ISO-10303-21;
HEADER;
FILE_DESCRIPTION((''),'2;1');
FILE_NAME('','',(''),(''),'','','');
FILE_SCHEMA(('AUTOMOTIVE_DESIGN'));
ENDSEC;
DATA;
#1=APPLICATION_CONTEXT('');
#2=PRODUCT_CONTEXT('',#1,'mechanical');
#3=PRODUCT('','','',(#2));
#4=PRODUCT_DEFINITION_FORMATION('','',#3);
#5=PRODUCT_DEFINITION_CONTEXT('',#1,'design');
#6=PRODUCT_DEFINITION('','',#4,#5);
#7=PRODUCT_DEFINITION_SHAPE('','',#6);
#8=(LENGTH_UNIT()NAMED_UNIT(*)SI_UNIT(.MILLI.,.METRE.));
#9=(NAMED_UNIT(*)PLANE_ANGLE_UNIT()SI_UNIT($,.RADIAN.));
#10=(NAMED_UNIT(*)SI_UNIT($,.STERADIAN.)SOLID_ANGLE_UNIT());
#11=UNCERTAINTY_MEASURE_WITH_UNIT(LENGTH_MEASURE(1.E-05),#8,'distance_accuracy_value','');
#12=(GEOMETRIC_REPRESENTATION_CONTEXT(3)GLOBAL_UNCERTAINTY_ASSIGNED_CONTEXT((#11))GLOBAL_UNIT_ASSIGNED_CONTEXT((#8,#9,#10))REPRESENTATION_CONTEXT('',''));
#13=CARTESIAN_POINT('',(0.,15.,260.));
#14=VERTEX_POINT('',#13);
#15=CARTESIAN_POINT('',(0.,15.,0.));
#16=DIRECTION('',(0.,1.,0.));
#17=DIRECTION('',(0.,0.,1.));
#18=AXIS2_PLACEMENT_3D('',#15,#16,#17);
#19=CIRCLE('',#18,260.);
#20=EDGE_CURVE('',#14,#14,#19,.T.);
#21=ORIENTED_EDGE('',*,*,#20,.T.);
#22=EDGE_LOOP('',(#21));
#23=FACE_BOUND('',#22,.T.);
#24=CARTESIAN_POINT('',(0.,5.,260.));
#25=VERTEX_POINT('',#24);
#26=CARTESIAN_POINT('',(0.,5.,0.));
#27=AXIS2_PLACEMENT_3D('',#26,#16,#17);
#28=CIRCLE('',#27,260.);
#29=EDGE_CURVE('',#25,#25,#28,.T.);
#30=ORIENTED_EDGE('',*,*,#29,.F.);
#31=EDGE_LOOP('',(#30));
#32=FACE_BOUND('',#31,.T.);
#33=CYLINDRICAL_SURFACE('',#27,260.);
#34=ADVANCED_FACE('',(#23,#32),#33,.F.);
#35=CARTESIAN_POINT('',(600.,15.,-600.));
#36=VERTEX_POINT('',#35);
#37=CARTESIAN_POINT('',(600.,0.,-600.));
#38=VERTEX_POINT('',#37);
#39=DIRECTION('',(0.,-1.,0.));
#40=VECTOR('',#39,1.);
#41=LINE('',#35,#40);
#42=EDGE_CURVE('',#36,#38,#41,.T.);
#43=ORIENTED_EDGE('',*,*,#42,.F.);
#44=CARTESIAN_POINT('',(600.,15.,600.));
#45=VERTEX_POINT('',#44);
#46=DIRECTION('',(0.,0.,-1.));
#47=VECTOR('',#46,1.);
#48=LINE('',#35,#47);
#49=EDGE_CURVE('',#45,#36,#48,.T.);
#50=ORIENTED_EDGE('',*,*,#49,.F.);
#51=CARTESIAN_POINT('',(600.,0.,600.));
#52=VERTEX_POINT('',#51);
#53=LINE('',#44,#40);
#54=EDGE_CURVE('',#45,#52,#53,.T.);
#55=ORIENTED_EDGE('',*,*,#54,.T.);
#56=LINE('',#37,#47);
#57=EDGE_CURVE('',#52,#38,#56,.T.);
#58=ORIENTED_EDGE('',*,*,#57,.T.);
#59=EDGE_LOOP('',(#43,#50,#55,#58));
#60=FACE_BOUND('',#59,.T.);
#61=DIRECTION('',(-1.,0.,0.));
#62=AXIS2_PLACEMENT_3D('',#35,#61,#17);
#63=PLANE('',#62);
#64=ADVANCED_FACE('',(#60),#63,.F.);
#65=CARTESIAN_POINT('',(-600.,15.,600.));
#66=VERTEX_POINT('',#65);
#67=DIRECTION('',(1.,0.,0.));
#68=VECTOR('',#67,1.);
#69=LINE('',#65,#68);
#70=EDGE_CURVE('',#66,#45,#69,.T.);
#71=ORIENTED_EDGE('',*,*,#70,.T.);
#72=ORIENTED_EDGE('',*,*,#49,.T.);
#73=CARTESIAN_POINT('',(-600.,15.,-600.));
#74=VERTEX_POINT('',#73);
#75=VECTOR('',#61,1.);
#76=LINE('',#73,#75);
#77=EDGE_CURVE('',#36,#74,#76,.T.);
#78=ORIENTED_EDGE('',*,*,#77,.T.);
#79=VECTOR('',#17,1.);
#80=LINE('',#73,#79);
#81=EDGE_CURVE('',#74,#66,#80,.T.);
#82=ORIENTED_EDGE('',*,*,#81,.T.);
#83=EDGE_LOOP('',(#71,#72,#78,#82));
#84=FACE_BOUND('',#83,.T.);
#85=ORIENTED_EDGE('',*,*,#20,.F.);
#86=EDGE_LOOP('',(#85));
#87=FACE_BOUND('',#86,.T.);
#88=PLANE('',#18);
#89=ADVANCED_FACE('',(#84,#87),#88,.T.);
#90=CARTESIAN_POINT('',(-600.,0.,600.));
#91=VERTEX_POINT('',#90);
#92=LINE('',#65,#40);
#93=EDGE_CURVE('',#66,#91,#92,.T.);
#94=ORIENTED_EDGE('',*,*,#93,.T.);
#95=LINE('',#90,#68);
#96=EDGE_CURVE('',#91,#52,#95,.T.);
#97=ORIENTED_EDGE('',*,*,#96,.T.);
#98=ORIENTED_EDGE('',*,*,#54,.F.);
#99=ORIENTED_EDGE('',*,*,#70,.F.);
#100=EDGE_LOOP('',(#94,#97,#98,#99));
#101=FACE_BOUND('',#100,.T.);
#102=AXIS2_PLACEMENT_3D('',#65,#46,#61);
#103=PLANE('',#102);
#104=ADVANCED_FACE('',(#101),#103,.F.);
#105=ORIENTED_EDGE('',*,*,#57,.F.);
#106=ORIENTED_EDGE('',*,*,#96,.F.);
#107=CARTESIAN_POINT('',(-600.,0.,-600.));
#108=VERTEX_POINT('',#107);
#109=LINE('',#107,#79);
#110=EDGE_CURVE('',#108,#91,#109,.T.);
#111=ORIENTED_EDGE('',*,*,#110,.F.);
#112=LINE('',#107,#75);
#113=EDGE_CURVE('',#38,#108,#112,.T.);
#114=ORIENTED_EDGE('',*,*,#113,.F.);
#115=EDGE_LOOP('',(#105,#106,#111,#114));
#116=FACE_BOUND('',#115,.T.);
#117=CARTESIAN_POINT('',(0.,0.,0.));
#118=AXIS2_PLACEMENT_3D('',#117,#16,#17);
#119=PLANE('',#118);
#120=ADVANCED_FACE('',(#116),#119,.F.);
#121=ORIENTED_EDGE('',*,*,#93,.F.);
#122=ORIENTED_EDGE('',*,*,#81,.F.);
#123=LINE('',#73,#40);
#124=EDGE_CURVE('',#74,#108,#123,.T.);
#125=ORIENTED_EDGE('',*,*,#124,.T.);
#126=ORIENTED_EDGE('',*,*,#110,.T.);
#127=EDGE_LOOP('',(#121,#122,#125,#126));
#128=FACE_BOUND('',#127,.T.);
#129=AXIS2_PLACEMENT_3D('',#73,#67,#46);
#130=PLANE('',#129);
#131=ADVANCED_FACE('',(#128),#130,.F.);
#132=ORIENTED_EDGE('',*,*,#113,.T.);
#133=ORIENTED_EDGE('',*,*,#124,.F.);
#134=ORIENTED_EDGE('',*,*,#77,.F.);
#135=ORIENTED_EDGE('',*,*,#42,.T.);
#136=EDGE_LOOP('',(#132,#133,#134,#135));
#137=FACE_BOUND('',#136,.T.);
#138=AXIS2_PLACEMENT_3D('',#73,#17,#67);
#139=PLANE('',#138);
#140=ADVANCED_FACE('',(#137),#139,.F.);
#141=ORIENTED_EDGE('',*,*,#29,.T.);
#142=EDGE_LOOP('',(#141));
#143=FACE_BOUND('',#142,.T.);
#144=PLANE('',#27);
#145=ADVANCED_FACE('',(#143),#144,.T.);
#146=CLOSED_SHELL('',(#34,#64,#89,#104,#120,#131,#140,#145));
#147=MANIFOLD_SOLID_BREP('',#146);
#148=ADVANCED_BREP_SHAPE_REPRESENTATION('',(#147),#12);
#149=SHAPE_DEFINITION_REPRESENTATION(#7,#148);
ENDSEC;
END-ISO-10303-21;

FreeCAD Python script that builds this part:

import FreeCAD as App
import Part
import Sketcher

V = App.Vector
Q = App.Units.Quantity

doc = App.newDocument("Part")
params = doc.addObject("Spreadsheet::Sheet", "Params")
for row, (alias, value) in enumerate([
    ("sketch1_width", "1200 mm"),
    ("pad1_length", "15 mm"),
    ("sketch2_diameter", "520 mm"),
    ("pocket1_length", "10 mm"),
], start=1):
    params.set(f"A{row}", alias)
    params.set(f"B{row}", "=" + value)
    params.setAlias(f"B{row}", alias)

body = doc.addObject("PartDesign::Body", "Body")

sketch1 = body.newObject("Sketcher::SketchObject", "Sketch")
sketch1.AttachmentSupport = (doc.getObject("XZ_Plane"), [""])
sketch1.MapMode = "FlatFace"
sketch1.addGeometry(Part.LineSegment(V(-600, -600, 0), V(-600, 600, 0)), False)
sketch1.addGeometry(Part.LineSegment(V(-600, 600, 0), V(600, 600, 0)), False)
sketch1.addGeometry(Part.LineSegment(V(600, 600, 0), V(600, -600, 0)), False)
sketch1.addGeometry(Part.LineSegment(V(600, -600, 0), V(-600, -600, 0)), False)
sketch1.addConstraint(Sketcher.Constraint("Coincident", 0, 2, 1, 1))
sketch1.addConstraint(Sketcher.Constraint("Coincident", 1, 2, 2, 1))
sketch1.addConstraint(Sketcher.Constraint("Coincident", 2, 2, 3, 1))
sketch1.addConstraint(Sketcher.Constraint("Coincident", 3, 2, 0, 1))
sketch1.addConstraint(Sketcher.Constraint("Vertical", 0))
sketch1.addConstraint(Sketcher.Constraint("Horizontal", 1))
sketch1.addConstraint(Sketcher.Constraint("Vertical", 2))
sketch1.addConstraint(Sketcher.Constraint("Horizontal", 3))
sketch1.addConstraint(Sketcher.Constraint("Symmetric", 0, 2, 2, 2, -1, 1))
sketch1.addConstraint(Sketcher.Constraint("Equal", 3, 0))
sketch1.addConstraint(Sketcher.Constraint("DistanceX", 1, 1, 1, 2, Q("1200 mm")))
sketch1.setExpression("Constraints[10]", "Params.sketch1_width")
pad1 = body.newObject("PartDesign::Pad", "Pad")
pad1.Profile = sketch1
pad1.setExpression("Length", "Params.pad1_length")
pad1.Reversed = True

sketch2 = body.newObject("Sketcher::SketchObject", "Sketch001")
sketch2.AttachmentSupport = (doc.getObject("XZ_Plane"), [""])
sketch2.MapMode = "FlatFace"
sketch2.AttachmentOffset = App.Placement(V(0, 0, -15), App.Rotation())
sketch2.addGeometry(Part.Circle(V(0, 0, 0), V(0, 0, 1), 260), False)
sketch2.addConstraint(Sketcher.Constraint("Coincident", 0, 3, -1, 1))
sketch2.addConstraint(Sketcher.Constraint("Diameter", 0, Q("520 mm")))
sketch2.setExpression("Constraints[1]", "Params.sketch2_diameter")
pocket1 = body.newObject("PartDesign::Pocket", "Pocket")
pocket1.Profile = sketch2
pocket1.setExpression("Length", "Params.pocket1_length")
pocket1.Reversed = True

doc.recompute()
